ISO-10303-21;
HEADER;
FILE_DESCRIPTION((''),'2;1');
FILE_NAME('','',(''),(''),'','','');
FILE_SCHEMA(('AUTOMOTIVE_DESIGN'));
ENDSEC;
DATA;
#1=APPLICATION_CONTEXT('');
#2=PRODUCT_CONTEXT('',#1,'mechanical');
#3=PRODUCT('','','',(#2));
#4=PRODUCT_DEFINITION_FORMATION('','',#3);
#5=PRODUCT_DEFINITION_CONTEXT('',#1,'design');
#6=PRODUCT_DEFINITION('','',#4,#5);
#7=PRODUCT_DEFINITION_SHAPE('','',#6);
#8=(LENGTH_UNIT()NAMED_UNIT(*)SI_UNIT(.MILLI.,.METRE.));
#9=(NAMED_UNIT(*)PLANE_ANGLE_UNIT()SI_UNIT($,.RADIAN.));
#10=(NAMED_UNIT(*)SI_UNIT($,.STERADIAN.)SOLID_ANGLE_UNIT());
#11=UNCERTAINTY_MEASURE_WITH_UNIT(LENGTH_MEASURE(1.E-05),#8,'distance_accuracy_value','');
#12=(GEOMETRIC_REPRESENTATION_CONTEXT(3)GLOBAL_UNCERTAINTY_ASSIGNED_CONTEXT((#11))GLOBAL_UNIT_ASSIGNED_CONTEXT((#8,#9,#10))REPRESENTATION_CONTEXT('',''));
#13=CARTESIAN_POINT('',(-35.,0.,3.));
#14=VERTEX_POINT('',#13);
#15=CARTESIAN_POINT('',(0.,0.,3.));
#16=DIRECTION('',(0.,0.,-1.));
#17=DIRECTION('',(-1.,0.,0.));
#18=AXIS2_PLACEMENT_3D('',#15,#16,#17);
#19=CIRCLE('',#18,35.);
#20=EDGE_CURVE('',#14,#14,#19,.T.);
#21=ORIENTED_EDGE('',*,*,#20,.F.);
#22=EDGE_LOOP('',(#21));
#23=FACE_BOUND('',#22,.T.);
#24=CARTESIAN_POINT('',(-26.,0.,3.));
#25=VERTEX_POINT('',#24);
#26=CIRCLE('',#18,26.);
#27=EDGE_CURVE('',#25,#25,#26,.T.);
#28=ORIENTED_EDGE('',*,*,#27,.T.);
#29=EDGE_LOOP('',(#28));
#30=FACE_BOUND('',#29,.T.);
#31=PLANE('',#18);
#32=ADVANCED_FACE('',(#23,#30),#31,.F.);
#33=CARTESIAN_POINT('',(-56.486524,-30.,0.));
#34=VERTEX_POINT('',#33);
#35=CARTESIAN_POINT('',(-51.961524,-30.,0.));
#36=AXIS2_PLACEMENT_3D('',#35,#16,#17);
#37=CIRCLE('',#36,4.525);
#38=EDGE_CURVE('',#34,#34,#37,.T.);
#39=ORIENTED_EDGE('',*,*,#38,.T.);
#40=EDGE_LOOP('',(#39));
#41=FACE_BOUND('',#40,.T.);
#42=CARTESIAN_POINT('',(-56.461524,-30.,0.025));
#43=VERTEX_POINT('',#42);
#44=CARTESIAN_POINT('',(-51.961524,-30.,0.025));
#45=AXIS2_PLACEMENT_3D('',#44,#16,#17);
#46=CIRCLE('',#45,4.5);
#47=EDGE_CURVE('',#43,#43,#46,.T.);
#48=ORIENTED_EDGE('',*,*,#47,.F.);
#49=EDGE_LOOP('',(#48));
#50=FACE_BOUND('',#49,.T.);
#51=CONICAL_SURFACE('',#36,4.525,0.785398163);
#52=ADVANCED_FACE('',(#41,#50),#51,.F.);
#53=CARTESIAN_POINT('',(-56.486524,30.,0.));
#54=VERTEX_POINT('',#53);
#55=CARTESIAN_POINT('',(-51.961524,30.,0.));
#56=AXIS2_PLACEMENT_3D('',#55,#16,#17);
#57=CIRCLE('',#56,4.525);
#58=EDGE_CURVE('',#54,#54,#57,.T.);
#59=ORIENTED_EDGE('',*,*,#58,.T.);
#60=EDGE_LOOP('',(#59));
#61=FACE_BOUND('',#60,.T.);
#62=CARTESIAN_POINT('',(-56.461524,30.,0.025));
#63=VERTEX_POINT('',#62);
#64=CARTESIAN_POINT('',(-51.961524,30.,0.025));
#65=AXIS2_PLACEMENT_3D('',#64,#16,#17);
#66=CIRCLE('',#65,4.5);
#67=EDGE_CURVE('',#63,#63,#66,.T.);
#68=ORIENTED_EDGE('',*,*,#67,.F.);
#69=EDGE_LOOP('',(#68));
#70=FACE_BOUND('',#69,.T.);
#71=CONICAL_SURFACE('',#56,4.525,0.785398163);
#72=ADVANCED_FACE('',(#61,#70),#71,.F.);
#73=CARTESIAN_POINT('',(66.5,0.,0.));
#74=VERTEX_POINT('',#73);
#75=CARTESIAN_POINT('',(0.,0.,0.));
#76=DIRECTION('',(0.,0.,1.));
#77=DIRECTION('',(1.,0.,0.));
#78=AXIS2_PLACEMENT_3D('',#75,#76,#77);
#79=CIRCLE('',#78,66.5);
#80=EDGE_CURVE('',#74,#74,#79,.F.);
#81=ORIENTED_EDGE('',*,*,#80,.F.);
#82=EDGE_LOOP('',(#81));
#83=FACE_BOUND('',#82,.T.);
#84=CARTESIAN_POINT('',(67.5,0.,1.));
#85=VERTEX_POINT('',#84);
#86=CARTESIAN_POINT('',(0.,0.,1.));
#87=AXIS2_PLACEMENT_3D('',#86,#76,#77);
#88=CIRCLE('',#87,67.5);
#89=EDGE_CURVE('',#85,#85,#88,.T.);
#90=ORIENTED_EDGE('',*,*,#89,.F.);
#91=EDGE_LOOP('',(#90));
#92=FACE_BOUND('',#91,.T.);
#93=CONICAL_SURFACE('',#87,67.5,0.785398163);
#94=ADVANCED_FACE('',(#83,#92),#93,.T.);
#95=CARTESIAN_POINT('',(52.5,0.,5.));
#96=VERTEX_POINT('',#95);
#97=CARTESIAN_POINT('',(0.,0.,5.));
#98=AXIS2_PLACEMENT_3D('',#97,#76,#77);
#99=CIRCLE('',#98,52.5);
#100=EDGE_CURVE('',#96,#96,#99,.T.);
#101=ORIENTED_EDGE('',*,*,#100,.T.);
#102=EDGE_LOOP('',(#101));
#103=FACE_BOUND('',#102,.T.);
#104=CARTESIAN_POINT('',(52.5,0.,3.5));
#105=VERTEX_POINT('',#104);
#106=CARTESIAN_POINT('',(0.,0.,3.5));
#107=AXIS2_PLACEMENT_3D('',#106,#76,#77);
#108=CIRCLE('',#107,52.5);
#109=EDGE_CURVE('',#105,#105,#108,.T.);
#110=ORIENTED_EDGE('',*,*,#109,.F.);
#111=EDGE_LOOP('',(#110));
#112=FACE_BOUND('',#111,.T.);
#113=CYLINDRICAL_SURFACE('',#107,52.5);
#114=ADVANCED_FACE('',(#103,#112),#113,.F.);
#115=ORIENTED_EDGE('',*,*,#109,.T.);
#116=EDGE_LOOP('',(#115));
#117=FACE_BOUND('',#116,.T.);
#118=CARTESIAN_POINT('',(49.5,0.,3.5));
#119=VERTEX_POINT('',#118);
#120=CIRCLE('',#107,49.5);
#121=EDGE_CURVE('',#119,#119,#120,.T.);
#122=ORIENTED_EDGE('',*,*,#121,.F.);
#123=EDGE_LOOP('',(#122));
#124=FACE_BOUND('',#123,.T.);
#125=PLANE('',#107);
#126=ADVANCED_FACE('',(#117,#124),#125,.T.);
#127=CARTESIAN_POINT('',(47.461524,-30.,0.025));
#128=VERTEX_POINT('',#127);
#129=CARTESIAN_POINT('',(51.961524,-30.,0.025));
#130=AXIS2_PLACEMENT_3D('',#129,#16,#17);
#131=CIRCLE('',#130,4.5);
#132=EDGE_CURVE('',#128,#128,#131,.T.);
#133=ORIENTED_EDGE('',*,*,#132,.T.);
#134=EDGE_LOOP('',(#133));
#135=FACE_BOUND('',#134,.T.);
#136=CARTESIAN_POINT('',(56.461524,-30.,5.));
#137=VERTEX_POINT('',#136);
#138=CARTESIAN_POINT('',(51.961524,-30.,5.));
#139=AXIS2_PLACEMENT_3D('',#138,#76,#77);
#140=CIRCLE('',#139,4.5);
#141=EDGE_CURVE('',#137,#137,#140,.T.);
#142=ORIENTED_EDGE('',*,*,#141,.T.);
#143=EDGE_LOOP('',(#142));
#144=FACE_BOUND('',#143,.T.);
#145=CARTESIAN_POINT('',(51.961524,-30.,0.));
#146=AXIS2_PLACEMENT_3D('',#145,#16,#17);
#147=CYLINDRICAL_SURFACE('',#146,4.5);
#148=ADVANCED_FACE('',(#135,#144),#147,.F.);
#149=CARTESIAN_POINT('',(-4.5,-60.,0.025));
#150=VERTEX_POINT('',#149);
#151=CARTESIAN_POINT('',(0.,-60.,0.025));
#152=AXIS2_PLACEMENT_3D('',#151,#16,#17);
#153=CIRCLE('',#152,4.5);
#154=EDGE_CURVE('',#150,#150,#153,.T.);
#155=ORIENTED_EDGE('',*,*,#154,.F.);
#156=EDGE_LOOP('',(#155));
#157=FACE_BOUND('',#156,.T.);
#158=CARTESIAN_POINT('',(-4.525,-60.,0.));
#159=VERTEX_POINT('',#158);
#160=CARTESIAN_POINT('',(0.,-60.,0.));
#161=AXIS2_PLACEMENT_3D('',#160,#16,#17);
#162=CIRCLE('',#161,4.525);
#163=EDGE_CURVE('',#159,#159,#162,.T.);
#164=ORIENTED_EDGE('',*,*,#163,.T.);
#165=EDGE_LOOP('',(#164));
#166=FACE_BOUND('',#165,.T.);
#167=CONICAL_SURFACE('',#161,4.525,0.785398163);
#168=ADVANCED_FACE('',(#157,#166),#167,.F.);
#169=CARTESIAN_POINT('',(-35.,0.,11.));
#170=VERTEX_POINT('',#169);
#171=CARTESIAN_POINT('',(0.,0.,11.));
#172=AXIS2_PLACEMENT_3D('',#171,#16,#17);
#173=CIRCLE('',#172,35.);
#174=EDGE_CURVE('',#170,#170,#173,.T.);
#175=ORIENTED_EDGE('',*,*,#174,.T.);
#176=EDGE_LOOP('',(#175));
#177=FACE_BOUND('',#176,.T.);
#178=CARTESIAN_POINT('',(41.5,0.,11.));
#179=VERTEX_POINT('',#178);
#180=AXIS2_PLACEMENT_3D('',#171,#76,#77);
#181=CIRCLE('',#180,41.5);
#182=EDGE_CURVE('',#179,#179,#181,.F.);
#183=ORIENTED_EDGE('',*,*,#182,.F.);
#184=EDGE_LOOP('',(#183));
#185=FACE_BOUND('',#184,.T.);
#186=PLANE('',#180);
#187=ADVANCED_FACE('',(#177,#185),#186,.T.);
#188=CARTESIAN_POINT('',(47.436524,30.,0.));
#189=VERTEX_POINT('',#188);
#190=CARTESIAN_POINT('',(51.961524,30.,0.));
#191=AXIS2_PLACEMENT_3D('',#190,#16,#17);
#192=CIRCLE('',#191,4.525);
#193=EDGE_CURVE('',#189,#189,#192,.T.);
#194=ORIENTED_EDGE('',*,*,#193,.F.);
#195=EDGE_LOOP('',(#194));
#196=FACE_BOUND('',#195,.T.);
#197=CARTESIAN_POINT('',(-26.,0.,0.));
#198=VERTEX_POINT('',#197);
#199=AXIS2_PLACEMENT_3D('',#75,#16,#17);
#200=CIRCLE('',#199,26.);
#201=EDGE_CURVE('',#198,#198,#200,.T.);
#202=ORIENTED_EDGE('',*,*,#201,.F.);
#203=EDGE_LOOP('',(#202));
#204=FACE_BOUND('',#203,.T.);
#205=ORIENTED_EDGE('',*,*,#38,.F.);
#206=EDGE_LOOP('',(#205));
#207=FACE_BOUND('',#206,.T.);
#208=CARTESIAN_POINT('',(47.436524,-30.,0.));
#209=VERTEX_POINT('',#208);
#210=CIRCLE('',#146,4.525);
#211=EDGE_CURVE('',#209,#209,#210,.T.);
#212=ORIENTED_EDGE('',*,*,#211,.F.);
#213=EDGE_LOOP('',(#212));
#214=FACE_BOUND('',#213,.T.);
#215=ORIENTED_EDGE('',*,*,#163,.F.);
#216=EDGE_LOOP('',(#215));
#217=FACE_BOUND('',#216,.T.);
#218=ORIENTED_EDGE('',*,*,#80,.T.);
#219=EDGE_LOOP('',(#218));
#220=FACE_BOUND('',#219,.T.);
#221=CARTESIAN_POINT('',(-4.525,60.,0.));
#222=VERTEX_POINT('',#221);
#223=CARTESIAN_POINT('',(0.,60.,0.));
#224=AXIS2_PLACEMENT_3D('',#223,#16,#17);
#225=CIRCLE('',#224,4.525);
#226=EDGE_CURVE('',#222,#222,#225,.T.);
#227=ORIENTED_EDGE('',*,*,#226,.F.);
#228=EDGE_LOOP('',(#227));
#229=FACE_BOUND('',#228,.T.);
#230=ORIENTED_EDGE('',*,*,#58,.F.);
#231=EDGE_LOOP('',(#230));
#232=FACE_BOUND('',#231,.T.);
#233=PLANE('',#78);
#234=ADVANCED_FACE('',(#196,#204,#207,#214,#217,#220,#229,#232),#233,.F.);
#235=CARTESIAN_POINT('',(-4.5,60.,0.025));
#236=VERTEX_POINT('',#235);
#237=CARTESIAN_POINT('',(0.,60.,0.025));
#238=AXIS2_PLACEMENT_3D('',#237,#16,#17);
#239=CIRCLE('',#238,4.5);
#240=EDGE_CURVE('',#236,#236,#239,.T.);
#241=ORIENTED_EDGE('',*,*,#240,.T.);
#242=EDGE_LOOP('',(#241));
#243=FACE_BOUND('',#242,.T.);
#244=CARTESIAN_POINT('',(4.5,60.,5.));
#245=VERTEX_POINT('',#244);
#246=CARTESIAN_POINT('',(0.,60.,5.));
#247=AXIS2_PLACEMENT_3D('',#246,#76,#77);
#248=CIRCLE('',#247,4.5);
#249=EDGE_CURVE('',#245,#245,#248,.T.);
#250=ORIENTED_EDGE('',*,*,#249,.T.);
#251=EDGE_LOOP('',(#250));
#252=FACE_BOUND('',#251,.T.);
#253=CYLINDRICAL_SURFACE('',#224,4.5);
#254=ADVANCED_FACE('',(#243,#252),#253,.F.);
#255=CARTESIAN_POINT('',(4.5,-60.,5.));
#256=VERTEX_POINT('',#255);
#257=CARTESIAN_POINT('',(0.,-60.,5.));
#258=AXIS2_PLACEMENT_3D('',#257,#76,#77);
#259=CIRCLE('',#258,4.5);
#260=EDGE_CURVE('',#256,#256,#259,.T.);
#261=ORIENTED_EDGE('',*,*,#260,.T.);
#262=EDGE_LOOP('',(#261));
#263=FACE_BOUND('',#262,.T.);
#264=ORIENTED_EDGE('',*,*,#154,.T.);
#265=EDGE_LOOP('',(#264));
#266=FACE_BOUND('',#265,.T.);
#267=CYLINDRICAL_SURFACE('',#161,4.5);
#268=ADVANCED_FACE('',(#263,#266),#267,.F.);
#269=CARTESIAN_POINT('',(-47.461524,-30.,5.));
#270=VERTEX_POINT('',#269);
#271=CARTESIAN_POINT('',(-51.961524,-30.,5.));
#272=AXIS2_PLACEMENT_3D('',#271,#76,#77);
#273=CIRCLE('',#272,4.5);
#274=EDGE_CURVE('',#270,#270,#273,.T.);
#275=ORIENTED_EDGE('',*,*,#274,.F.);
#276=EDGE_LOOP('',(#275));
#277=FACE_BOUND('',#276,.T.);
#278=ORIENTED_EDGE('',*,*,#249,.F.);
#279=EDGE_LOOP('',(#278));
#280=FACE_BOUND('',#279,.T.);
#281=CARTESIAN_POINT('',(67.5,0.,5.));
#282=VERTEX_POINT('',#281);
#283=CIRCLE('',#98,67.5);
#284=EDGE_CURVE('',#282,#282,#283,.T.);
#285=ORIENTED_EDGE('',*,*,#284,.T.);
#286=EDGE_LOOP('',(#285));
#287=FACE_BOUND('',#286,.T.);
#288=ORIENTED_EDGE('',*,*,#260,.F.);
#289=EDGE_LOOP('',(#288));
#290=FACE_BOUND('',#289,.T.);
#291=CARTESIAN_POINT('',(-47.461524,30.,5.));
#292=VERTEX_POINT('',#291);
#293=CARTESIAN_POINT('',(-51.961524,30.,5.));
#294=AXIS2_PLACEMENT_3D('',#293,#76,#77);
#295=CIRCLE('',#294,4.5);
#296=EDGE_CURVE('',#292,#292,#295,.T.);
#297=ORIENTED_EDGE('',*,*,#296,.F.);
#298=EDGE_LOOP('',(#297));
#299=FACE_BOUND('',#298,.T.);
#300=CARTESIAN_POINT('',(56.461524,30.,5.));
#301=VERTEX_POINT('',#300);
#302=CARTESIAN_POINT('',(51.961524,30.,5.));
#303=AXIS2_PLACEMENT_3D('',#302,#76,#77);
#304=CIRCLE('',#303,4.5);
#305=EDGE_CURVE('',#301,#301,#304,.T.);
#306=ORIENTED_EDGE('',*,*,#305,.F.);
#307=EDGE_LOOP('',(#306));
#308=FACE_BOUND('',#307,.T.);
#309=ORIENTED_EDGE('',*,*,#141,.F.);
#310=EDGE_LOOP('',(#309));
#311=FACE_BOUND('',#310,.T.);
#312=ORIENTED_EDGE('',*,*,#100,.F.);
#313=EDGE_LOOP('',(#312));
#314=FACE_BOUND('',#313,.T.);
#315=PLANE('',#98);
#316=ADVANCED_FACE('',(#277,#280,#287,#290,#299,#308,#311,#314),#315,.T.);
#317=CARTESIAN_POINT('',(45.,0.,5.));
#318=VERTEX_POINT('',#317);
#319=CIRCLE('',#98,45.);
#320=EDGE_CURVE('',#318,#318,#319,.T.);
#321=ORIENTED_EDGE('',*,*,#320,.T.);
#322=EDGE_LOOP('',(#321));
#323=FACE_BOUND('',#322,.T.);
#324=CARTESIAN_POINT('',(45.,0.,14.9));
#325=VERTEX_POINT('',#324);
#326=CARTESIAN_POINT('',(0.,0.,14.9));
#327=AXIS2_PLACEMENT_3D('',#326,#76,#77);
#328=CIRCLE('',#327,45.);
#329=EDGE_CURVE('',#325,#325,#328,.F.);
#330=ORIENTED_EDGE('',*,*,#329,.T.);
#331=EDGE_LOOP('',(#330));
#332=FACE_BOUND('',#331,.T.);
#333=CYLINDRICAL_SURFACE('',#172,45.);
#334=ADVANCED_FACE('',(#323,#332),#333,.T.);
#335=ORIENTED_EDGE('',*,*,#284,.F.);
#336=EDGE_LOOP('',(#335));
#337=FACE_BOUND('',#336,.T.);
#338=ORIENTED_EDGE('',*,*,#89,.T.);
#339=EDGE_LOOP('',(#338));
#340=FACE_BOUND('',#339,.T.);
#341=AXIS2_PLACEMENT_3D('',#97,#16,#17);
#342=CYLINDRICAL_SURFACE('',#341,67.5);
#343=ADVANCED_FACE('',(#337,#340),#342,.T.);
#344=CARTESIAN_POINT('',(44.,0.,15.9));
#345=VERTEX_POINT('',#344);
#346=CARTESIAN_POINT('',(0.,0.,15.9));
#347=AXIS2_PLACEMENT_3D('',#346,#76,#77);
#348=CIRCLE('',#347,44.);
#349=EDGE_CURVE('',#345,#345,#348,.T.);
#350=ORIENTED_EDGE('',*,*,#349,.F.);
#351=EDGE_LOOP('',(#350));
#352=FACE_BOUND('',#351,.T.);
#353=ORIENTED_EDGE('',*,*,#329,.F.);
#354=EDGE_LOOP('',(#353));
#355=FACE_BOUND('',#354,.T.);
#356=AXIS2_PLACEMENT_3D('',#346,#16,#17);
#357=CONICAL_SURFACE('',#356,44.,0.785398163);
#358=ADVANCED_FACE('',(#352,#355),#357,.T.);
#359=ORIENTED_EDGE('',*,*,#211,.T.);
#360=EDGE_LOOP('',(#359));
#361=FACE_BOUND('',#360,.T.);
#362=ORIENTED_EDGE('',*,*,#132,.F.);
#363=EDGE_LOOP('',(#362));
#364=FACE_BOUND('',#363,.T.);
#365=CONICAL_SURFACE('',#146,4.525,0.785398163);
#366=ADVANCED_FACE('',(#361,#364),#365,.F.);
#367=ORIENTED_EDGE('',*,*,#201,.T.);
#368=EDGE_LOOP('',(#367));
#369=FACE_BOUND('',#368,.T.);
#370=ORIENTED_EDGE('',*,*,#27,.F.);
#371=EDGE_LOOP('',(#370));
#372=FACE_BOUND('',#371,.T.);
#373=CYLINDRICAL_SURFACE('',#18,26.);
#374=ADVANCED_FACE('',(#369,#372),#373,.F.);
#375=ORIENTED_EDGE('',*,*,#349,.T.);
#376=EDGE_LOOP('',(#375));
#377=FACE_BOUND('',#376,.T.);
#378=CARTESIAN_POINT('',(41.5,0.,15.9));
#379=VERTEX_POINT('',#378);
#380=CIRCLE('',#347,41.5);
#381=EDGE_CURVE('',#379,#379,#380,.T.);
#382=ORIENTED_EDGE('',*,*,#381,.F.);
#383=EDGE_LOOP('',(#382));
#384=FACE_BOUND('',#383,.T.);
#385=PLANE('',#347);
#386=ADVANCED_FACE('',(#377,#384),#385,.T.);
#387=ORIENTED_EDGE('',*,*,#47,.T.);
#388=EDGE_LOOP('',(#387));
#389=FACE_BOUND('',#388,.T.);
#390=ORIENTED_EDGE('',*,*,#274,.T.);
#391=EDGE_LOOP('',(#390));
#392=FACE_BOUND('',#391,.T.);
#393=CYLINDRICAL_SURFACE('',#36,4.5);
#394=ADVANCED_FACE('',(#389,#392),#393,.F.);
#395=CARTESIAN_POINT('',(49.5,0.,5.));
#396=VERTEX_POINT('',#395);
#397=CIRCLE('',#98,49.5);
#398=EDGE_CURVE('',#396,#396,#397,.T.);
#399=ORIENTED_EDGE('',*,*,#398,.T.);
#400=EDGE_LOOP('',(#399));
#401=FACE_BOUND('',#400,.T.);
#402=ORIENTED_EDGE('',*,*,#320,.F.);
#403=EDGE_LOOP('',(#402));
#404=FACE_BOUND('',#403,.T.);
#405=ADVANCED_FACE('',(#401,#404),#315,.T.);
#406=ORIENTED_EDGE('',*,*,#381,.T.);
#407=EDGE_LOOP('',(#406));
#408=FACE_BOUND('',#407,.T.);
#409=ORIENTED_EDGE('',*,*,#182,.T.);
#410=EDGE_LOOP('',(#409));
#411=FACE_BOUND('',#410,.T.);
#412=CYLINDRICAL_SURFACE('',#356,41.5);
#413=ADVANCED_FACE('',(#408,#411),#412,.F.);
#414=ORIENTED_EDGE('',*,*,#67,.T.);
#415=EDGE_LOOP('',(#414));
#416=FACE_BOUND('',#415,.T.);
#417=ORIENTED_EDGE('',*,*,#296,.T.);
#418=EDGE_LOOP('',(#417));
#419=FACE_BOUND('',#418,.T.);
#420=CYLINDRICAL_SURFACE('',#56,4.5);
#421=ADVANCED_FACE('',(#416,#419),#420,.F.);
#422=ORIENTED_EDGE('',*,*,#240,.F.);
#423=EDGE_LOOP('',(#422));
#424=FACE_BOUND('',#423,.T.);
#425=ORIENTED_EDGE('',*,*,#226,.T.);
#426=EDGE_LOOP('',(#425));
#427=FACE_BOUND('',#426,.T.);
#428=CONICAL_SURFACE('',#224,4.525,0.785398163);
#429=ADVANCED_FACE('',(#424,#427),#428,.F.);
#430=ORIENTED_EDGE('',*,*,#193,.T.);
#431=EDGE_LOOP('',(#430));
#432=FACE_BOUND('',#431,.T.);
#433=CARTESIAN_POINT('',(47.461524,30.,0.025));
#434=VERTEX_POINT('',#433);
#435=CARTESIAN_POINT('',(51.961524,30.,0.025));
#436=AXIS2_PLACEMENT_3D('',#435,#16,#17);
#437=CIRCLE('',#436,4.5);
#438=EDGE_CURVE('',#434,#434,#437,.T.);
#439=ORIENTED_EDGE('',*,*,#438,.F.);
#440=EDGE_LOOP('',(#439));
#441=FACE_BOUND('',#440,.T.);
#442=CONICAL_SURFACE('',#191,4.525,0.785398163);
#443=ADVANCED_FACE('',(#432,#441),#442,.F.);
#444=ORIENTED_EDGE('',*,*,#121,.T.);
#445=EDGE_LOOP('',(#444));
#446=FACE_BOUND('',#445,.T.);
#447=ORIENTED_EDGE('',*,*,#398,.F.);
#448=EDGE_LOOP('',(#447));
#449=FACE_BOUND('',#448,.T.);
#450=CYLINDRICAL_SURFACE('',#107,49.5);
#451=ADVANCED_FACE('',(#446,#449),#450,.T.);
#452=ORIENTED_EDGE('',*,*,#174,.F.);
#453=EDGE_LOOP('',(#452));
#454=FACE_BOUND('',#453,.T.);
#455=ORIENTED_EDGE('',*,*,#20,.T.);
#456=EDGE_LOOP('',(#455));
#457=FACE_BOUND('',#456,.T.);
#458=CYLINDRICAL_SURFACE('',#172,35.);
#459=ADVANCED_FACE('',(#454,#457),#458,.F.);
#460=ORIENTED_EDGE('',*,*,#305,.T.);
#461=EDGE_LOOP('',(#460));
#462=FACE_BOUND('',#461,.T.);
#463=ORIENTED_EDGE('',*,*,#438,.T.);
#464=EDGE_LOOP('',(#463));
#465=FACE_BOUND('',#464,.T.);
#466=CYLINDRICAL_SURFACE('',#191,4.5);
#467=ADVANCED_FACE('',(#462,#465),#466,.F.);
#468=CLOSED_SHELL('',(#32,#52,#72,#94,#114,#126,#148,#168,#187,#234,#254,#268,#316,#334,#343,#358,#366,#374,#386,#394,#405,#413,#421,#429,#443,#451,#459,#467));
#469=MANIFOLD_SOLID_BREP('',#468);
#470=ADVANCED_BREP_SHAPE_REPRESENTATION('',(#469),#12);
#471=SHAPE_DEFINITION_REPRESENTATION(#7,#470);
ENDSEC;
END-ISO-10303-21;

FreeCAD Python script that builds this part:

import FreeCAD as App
import Part
import Sketcher
from FreeCAD import Vector
Q = App.Units.Quantity


def edges_at(feature, points):
    """Names of the edges that pass closest to the given points."""
    edges = feature.Shape.Edges
    near = lambda p: min(range(len(edges)), key=lambda i: edges[i].distToShape(Part.Vertex(*p))[0])
    return sorted({f"Edge{near(p) + 1}" for p in points})

doc = App.newDocument("Part")
body = doc.addObject("PartDesign::Body", "Body")

sketch1 = body.newObject("Sketcher::SketchObject", "Sketch")
sketch1.AttachmentSupport = (doc.getObject("XY_Plane"), [""])
sketch1.MapMode = "FlatFace"
sketch1.addGeometry(Part.Circle(Vector(0, 0, 0), Vector(0, 0, 1), 68), False)
sketch1.addConstraint([
    Sketcher.Constraint("Coincident", 0, 3, -1, 1),
    Sketcher.Constraint("Diameter", 0, Q("135 mm")),
])
pad1 = body.newObject("PartDesign::Pad", "Pad")
pad1.Profile = sketch1
pad1.Length = 5

sketch2 = body.newObject("Sketcher::SketchObject", "Sketch001")
sketch2.AttachmentSupport = (doc.getObject("XY_Plane"), [""])
sketch2.MapMode = "FlatFace"
sketch2.AttachmentOffset = App.Placement(Vector(0, 0, 5), App.Rotation())
sketch2.addGeometry(Part.Circle(Vector(0, 0, 0), Vector(0, 0, 1), 45), False)
sketch2.addConstraint([
    Sketcher.Constraint("Coincident", 0, 3, -1, 1),
    Sketcher.Constraint("Diameter", 0, Q("90 mm")),
])
pad2 = body.newObject("PartDesign::Pad", "Pad001")
pad2.Profile = sketch2
pad2.Length = 6

sketch3 = body.newObject("Sketcher::SketchObject", "Sketch002")
sketch3.AttachmentSupport = (doc.getObject("XY_Plane"), [""])
sketch3.MapMode = "FlatFace"
sketch3.addGeometry(Part.Circle(Vector(0, 0, 0), Vector(0, 0, 1), 26), False)
sketch3.addConstraint([
    Sketcher.Constraint("Coincident", 0, 3, -1, 1),
    Sketcher.Constraint("Diameter", 0, Q("52 mm")),
])
pocket1 = body.newObject("PartDesign::Pocket", "Pocket")
pocket1.Profile = sketch3
pocket1.Length = 3
pocket1.Reversed = True

sketch4 = body.newObject("Sketcher::SketchObject", "Sketch003")
sketch4.AttachmentSupport = (doc.getObject("XY_Plane"), [""])
sketch4.MapMode = "FlatFace"
sketch4.AttachmentOffset = App.Placement(Vector(0, 0, 3), App.Rotation())
sketch4.addGeometry(Part.Circle(Vector(0, 0, 0), Vector(0, 0, 1), 35), False)
sketch4.addConstraint([
    Sketcher.Constraint("Coincident", 0, 3, -1, 1),
    Sketcher.Constraint("Diameter", 0, Q("70 mm")),
])
pocket2 = body.newObject("PartDesign::Pocket", "Pocket001")
pocket2.Profile = sketch4
pocket2.Type = "ThroughAll"
pocket2.Reversed = True
doc.recompute()

chamfer = body.newObject("PartDesign::Chamfer", "Chamfer")
chamfer.Base = (pocket2, edges_at(pocket2, [(-67.5, 0, 0)]))
chamfer.Size = 1

sketch5 = body.newObject("Sketcher::SketchObject", "Sketch004")
sketch5.AttachmentSupport = (doc.getObject("XY_Plane"), [""])
sketch5.MapMode = "FlatFace"
sketch5.addGeometry(Part.Circle(Vector(0, 60, 0), Vector(0, 0, 1), 4.5), False)
sketch5.addConstraint([
    Sketcher.Constraint("PointOnObject", 0, 3, -2),
    Sketcher.Constraint("Diameter", 0, Q("9 mm")),
    Sketcher.Constraint("DistanceY", -1, 1, 0, 3, Q("60 mm")),
])
doc.recompute()
hole = body.newObject("PartDesign::Hole", "Hole")
hole.Profile = sketch5
hole.ThreadType = "None"
hole.Diameter = 9
hole.DepthType = "ThroughAll"
hole.HoleCutType = "Countersink"
hole.HoleCutDiameter = 9.05
hole.HoleCutCountersinkAngle = 90
hole.Reversed = True
doc.recompute()

polarpattern = body.newObject("PartDesign::PolarPattern", "PolarPattern")
polarpattern.Originals = [hole]
polarpattern.Axis = (doc.getObject("Z_Axis"), [""])
polarpattern.Angle = 360
polarpattern.Occurrences = 6
body.Tip = polarpattern

sketch6 = body.newObject("Sketcher::SketchObject", "Sketch005")
sketch6.AttachmentSupport = (doc.getObject("XY_Plane"), [""])
sketch6.MapMode = "FlatFace"
sketch6.AttachmentOffset = App.Placement(Vector(0, 0, 5), App.Rotation())
sketch6.addGeometry([
    Part.Circle(Vector(0, 0, 0), Vector(0, 0, 1), 52),
    Part.Circle(Vector(0, 0, 0), Vector(0, 0, 1), 50),
], False)
sketch6.addConstraint([
    Sketcher.Constraint("Coincident", 0, 3, -1, 1),
    Sketcher.Constraint("Coincident", 1, 3, -1, 1),
    Sketcher.Constraint("Diameter", 0, Q("105 mm")),
    Sketcher.Constraint("Diameter", 1, Q("99 mm")),
])
pocket3 = body.newObject("PartDesign::Pocket", "Pocket002")
pocket3.Profile = sketch6
pocket3.Length = 1.5

sketch7 = body.newObject("Sketcher::SketchObject", "Sketch006")
sketch7.AttachmentSupport = (doc.getObject("XY_Plane"), [""])
sketch7.MapMode = "FlatFace"
sketch7.AttachmentOffset = App.Placement(Vector(0, 0, 11), App.Rotation())
sketch7.addGeometry([
    Part.Circle(Vector(0, 0, 0), Vector(0, 0, 1), 45),
    Part.Circle(Vector(0, 0, 0), Vector(0, 0, 1), 42),
], False)
sketch7.addConstraint([
    Sketcher.Constraint("Coincident", 0, 3, -1, 1),
    Sketcher.Constraint("Coincident", 1, 3, -1, 1),
    Sketcher.Constraint("Diameter", 0, Q("90 mm")),
    Sketcher.Constraint("Diameter", 1, Q("83 mm")),
])
pad3 = body.newObject("PartDesign::Pad", "Pad002")
pad3.Profile = sketch7
pad3.Length = 4.9
doc.recompute()

chamfer2 = body.newObject("PartDesign::Chamfer", "Chamfer001")
chamfer2.Base = (pad3, edges_at(pad3, [(-45, 0, 15.9)]))
chamfer2.Size = 1

doc.recompute()
